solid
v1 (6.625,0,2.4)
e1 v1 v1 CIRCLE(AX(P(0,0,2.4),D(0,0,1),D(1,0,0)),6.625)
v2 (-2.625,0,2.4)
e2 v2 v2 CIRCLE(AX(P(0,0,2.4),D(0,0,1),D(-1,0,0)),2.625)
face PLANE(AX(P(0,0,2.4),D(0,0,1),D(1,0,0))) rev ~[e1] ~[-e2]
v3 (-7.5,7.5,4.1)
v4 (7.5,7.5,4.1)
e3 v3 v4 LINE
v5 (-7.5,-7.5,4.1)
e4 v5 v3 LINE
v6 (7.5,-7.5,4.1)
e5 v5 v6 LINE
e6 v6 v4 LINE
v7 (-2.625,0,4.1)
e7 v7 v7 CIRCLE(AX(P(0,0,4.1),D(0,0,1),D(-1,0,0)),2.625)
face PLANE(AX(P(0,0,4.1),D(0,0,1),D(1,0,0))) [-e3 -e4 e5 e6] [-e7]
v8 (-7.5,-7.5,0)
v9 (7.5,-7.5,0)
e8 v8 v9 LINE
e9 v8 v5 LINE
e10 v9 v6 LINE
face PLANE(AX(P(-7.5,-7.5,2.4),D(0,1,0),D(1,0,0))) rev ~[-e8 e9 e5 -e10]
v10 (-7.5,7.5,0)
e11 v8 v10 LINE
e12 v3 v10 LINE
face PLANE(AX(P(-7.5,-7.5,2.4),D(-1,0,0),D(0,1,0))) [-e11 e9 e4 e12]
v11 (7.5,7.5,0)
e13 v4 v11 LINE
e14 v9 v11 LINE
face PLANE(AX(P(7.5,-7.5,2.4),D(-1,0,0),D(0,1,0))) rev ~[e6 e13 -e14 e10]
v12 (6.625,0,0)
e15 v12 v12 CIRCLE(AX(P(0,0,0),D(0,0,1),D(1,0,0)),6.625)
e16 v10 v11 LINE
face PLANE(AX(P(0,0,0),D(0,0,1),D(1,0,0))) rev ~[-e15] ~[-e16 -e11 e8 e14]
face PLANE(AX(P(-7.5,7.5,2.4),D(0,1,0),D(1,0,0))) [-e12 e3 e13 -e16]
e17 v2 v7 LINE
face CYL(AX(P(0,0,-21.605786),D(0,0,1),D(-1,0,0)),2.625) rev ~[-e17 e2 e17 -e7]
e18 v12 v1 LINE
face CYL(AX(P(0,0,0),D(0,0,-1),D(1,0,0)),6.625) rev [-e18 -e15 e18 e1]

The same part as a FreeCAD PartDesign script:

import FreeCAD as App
import Part
import Sketcher

V = App.Vector

doc = App.newDocument("Part")
body = doc.addObject("PartDesign::Body", "Body")

# Sketch on XY plane
sketch1 = doc.addObject("Sketcher::SketchObject", "Sketch")
body.addObject(sketch1)
sketch1.AttachmentSupport = (doc.XY_Plane, [""])
sketch1.MapMode = "FlatFace"
sketch1.addGeometry([
    Part.LineSegment(V(-7.5, 7.5, 0), V(-7.5, -7.5, 0)),  # 0
    Part.LineSegment(V(-7.5, -7.5, 0), V(7.5, -7.5, 0)),  # 1
    Part.LineSegment(V(7.5, -7.5, 0), V(7.5, 7.5, 0)),  # 2
    Part.LineSegment(V(7.5, 7.5, 0), V(-7.5, 7.5, 0)),  # 3
    Part.Circle(V(0, 0, 0), V(0, 0, 1), 6.625),  # 4
], False)
sketch1.addConstraint([
    Sketcher.Constraint("Coincident", 0, 2, 1, 1),
    Sketcher.Constraint("Coincident", 1, 2, 2, 1),
    Sketcher.Constraint("Coincident", 2, 2, 3, 1),
    Sketcher.Constraint("Coincident", 3, 2, 0, 1),
    Sketcher.Constraint("Vertical", 0),
    Sketcher.Constraint("Horizontal", 1),
    Sketcher.Constraint("Vertical", 2),
    Sketcher.Constraint("Horizontal", 3),
    Sketcher.Constraint("Coincident", 4, 3, -1, 1),
    Sketcher.Constraint("Symmetric", 0, 2, 2, 2, -1, 1),
    Sketcher.Constraint("Equal", 3, 0),
    Sketcher.Constraint("Diameter", 4, 13.25),
    Sketcher.Constraint("DistanceX", 1, 1, 1, 2, 15.0),
])
pad1 = doc.addObject("PartDesign::Pad", "Pad")
body.addObject(pad1)
pad1.Profile = sketch1
pad1.Length = 2.4

# Sketch on XY plane
sketch2 = doc.addObject("Sketcher::SketchObject", "Sketch001")
body.addObject(sketch2)
sketch2.AttachmentSupport = (doc.XY_Plane, [""])
sketch2.MapMode = "FlatFace"
sketch2.AttachmentOffset = App.Placement(V(0, 0, 2.4), App.Rotation())
sketch2.addGeometry([
    Part.LineSegment(V(-7.5, 7.5, 0), V(-7.5, -7.5, 0)),
    Part.LineSegment(V(-7.5, -7.5, 0), V(7.5, -7.5, 0)),
    Part.LineSegment(V(7.5, -7.5, 0), V(7.5, 7.5, 0)),
    Part.LineSegment(V(7.5, 7.5, 0), V(-7.5, 7.5, 0)),
], False)
sketch2.addConstraint([
    Sketcher.Constraint("Coincident", 0, 2, 1, 1),
    Sketcher.Constraint("Coincident", 1, 2, 2, 1),
    Sketcher.Constraint("Coincident", 2, 2, 3, 1),
    Sketcher.Constraint("Coincident", 3, 2, 0, 1),
    Sketcher.Constraint("Vertical", 0),
    Sketcher.Constraint("Horizontal", 1),
    Sketcher.Constraint("Vertical", 2),
    Sketcher.Constraint("Horizontal", 3),
    Sketcher.Constraint("Symmetric", 0, 2, 2, 2, -1, 1),
    Sketcher.Constraint("Equal", 3, 0),
    Sketcher.Constraint("DistanceX", 1, 1, 1, 2, 15.0),
])
pad2 = doc.addObject("PartDesign::Pad", "Pad001")
body.addObject(pad2)
pad2.Profile = sketch2
pad2.Length = 1.7

# Sketch on XY plane
sketch3 = doc.addObject("Sketcher::SketchObject", "Sketch002")
body.addObject(sketch3)
sketch3.AttachmentSupport = (doc.XY_Plane, [""])
sketch3.MapMode = "FlatFace"
sketch3.addGeometry(Part.Circle(V(0, 0, 0), V(0, 0, 1), 2.625), False)
sketch3.addConstraint([
    Sketcher.Constraint("Coincident", 0, 3, -1, 1),
    Sketcher.Constraint("Diameter", 0, 5.25),
])
doc.recompute()
hole = doc.addObject("PartDesign::Hole", "Hole")
body.addObject(hole)
hole.Profile = sketch3
hole.ThreadType = "None"
hole.Diameter = 5.25
hole.DepthType = "ThroughAll"
hole.Reversed = True

doc.recompute()
